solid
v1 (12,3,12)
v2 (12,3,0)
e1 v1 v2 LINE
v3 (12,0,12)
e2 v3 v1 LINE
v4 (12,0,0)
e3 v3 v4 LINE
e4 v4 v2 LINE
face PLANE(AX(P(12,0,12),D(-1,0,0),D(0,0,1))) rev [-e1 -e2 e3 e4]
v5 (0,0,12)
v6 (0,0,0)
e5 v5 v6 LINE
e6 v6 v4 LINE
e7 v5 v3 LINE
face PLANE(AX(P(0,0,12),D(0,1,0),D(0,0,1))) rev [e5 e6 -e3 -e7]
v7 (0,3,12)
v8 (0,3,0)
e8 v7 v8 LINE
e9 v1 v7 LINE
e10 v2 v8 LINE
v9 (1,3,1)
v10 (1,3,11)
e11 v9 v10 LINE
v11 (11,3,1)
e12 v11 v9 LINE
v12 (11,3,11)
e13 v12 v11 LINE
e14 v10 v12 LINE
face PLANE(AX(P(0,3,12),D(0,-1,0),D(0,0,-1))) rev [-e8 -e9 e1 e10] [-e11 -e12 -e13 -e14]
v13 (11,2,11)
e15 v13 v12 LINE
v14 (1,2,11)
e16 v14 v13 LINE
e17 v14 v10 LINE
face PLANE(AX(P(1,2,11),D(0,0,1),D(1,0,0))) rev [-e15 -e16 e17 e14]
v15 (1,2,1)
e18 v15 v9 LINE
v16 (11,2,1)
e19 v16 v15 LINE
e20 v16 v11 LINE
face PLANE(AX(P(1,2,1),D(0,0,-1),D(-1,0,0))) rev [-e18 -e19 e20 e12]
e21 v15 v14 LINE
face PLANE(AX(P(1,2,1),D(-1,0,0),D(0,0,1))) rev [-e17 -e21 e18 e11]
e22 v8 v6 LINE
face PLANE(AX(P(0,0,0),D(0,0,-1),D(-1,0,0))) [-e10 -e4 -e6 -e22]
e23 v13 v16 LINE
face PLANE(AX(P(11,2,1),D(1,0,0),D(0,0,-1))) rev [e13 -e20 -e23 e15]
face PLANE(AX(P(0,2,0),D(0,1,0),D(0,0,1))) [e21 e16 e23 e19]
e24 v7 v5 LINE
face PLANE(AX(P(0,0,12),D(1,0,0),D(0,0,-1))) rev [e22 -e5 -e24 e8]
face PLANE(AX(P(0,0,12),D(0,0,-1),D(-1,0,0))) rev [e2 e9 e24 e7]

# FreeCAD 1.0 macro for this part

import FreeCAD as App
import Part
import Sketcher

doc = App.newDocument("Part")
params = doc.addObject("Spreadsheet::Sheet", "Params")
for row, (alias, value) in enumerate([
    ("sketch1_width", "12 mm"),
    ("sketch1_height", "3 mm"),
    ("pad1_length", "12 mm"),
    ("sketch2_width", "10 mm"),
    ("pocket1_length", "1 mm"),
], start=1):
    params.set(f"A{row}", alias)
    params.set(f"B{row}", "=" + value)
    params.setAlias(f"B{row}", alias)

body = doc.addObject("PartDesign::Body", "Body")

# Sketch on XY plane
sketch1 = body.newObject("Sketcher::SketchObject", "Sketch")
sketch1.AttachmentSupport = (doc.getObject("XY_Plane"), [""])
sketch1.MapMode = "FlatFace"
sketch1.addGeometry([
    Part.LineSegment(App.Vector(0, 3, 0), App.Vector(0, 0, 0)),
    Part.LineSegment(App.Vector(0, 0, 0), App.Vector(12, 0, 0)),
    Part.LineSegment(App.Vector(12, 0, 0), App.Vector(12, 3, 0)),
    Part.LineSegment(App.Vector(12, 3, 0), App.Vector(0, 3, 0)),
], False)
sketch1.addConstraint([
    Sketcher.Constraint("Coincident", 0, 2, 1, 1),
    Sketcher.Constraint("Coincident", 1, 2, 2, 1),
    Sketcher.Constraint("Coincident", 2, 2, 3, 1),
    Sketcher.Constraint("Coincident", 3, 2, 0, 1),
    Sketcher.Constraint("Vertical", 0),
    Sketcher.Constraint("Horizontal", 1),
    Sketcher.Constraint("Vertical", 2),
    Sketcher.Constraint("Horizontal", 3),
    Sketcher.Constraint("Coincident", 0, 2, -1, 1),
    Sketcher.Constraint("DistanceX", 1, 1, 1, 2, 12.0),
    Sketcher.Constraint("DistanceY", 0, 2, 0, 1, 3.0),
])
sketch1.setExpression("Constraints[9]", "Params.sketch1_width")
sketch1.setExpression("Constraints[10]", "Params.sketch1_height")
pad1 = body.newObject("PartDesign::Pad", "Pad")
pad1.Profile = sketch1
pad1.setExpression("Length", "Params.pad1_length")

# Sketch on XZ plane
sketch2 = body.newObject("Sketcher::SketchObject", "Sketch001")
sketch2.AttachmentSupport = (doc.getObject("XZ_Plane"), [""])
sketch2.MapMode = "FlatFace"
sketch2.AttachmentOffset = App.Placement(App.Vector(0, 0, -3), App.Rotation())
sketch2.addGeometry([
    Part.LineSegment(App.Vector(1, 1, 0), App.Vector(1, 11, 0)),
    Part.LineSegment(App.Vector(1, 11, 0), App.Vector(11, 11, 0)),
    Part.LineSegment(App.Vector(11, 11, 0), App.Vector(11, 1, 0)),
    Part.LineSegment(App.Vector(11, 1, 0), App.Vector(1, 1, 0)),
], False)
sketch2.addConstraint([
    Sketcher.Constraint("Coincident", 0, 2, 1, 1),
    Sketcher.Constraint("Coincident", 1, 2, 2, 1),
    Sketcher.Constraint("Coincident", 2, 2, 3, 1),
    Sketcher.Constraint("Coincident", 3, 2, 0, 1),
    Sketcher.Constraint("Vertical", 0),
    Sketcher.Constraint("Horizontal", 1),
    Sketcher.Constraint("Vertical", 2),
    Sketcher.Constraint("Horizontal", 3),
    Sketcher.Constraint("Equal", 3, 0),
    Sketcher.Constraint("DistanceX", 1, 1, 1, 2, 10.0),
    Sketcher.Constraint("DistanceX", -1, 1, 0, 2, 1.0),
    Sketcher.Constraint("DistanceY", -1, 1, 0, 2, 11.0),
])
sketch2.setExpression("Constraints[9]", "Params.sketch2_width")
pocket1 = body.newObject("PartDesign::Pocket", "Pocket")
pocket1.Profile = sketch2
pocket1.setExpression("Length", "Params.pocket1_length")
pocket1.Reversed = True

doc.recompute()
